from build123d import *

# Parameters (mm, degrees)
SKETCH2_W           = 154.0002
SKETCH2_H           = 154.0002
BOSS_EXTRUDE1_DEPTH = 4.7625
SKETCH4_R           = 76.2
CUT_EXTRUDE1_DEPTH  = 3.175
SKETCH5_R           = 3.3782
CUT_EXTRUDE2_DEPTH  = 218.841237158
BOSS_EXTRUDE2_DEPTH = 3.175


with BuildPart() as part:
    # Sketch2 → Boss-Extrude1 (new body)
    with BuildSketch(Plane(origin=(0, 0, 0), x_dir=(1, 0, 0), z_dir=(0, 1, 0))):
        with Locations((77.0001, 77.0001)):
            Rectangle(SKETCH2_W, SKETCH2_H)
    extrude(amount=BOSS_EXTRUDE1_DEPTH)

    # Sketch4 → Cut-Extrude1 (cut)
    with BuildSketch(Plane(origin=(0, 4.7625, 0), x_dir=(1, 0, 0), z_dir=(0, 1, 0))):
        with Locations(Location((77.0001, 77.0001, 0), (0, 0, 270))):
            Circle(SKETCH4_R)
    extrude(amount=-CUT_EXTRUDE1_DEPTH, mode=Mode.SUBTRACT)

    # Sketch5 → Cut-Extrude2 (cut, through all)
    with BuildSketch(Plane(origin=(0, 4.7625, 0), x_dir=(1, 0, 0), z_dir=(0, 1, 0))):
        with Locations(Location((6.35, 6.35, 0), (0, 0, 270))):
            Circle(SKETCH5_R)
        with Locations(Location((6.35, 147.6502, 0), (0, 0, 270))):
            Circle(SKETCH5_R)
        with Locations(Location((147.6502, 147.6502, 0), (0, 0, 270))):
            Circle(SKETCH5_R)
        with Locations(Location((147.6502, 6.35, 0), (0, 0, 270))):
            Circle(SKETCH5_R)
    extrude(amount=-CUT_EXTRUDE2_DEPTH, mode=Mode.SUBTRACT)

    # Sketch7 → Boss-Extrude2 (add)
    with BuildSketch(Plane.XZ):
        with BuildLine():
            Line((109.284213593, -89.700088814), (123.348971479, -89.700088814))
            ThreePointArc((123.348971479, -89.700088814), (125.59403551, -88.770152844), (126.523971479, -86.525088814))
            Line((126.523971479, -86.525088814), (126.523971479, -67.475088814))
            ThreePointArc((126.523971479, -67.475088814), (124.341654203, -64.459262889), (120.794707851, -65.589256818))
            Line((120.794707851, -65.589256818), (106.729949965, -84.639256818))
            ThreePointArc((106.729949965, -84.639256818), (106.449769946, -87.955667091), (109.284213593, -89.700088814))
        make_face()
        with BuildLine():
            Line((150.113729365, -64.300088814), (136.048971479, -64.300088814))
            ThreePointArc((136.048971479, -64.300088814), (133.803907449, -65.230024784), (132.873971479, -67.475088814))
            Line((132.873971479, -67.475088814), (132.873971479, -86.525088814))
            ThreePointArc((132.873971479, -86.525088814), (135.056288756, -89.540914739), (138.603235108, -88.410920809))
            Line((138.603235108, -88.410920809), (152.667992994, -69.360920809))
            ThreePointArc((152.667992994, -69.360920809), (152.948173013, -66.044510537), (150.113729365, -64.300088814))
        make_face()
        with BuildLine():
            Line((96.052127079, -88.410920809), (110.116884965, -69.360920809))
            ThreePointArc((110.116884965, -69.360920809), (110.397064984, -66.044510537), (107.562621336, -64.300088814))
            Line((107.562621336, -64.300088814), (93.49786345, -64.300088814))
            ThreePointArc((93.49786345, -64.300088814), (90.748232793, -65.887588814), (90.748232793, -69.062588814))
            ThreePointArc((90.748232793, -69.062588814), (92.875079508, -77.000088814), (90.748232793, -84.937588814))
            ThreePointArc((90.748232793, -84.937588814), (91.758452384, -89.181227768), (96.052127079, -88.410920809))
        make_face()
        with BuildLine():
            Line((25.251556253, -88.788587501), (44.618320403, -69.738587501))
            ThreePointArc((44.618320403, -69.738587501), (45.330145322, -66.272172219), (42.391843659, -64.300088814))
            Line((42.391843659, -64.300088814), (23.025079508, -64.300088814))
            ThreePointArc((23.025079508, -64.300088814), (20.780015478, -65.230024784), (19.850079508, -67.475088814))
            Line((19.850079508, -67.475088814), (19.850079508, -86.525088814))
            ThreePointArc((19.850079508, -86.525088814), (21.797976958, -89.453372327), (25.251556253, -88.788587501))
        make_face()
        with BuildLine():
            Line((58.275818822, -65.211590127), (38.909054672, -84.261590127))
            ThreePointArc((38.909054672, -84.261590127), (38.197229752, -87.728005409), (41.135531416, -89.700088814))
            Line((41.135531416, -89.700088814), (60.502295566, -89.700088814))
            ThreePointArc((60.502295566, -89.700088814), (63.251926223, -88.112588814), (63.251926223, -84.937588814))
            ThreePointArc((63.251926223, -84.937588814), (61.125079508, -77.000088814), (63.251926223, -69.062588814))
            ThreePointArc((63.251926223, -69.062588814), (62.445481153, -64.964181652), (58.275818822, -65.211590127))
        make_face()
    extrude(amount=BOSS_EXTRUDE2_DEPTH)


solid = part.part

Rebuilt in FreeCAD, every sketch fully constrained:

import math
import FreeCAD as App
import Part
import Sketcher

V = App.Vector
Q = App.Units.Quantity

doc = App.newDocument("Part")
body = doc.addObject("PartDesign::Body", "Body")

# Sketch on XZ plane
sketch1 = body.newObject("Sketcher::SketchObject", "Sketch")
sketch1.AttachmentSupport = (doc.getObject("XZ_Plane"), [""])
sketch1.MapMode = "FlatFace"
sketch1.addGeometry([
    Part.LineSegment(V(0, -154.0002, 0), V(0, 0, 0)),
    Part.LineSegment(V(0, 0, 0), V(154.0002, 0, 0)),
    Part.LineSegment(V(154.0002, 0, 0), V(154.0002, -154.0002, 0)),
    Part.LineSegment(V(154.0002, -154.0002, 0), V(0, -154.0002, 0)),
], False)
sketch1.addConstraint([
    Sketcher.Constraint("Coincident", 0, 2, 1, 1),
    Sketcher.Constraint("Coincident", 1, 2, 2, 1),
    Sketcher.Constraint("Coincident", 2, 2, 3, 1),
    Sketcher.Constraint("Coincident", 3, 2, 0, 1),
    Sketcher.Constraint("Vertical", 0),
    Sketcher.Constraint("Horizontal", 1),
    Sketcher.Constraint("Vertical", 2),
    Sketcher.Constraint("Horizontal", 3),
    Sketcher.Constraint("Coincident", 0, 2, -1, 1),
    Sketcher.Constraint("Equal", 3, 0),
    Sketcher.Constraint("DistanceX", 1, 1, 1, 2, Q("6.063 in")),
])
pad1 = body.newObject("PartDesign::Pad", "Pad")
pad1.Profile = sketch1
pad1.Length = Q("0.1875 in")
pad1.Reversed = True

# Sketch on XZ plane
sketch2 = body.newObject("Sketcher::SketchObject", "Sketch001")
sketch2.AttachmentSupport = (doc.getObject("XZ_Plane"), [""])
sketch2.MapMode = "FlatFace"
sketch2.AttachmentOffset = App.Placement(V(0, 0, -0.1875 * 25.4), App.Rotation())
sketch2.addGeometry(Part.Circle(V(77, -77, 0), V(0, 0, 1), 76), False)
sketch2.addConstraint([
    Sketcher.Constraint("Diameter", 0, Q("6 in")),
    Sketcher.Constraint("DistanceX", -1, 1, 0, 3, Q("3.0315 in")),
    Sketcher.Constraint("DistanceY", 0, 3, -1, 1, Q("3.0315 in")),
])
pocket1 = body.newObject("PartDesign::Pocket", "Pocket")
pocket1.Profile = sketch2
pocket1.Length = Q("0.125 in")
pocket1.Reversed = True

# Sketch on XZ plane
sketch3 = body.newObject("Sketcher::SketchObject", "Sketch002")
sketch3.AttachmentSupport = (doc.getObject("XZ_Plane"), [""])
sketch3.MapMode = "FlatFace"
sketch3.AttachmentOffset = App.Placement(V(0, 0, -0.1875 * 25.4), App.Rotation())
sketch3.addGeometry([
    Part.Circle(V(6.3, -6.3, 0), V(0, 0, 1), 3.4),
    Part.Circle(V(6.3, -147.7, 0), V(0, 0, 1), 3.4),
    Part.Circle(V(147.7, -147.7, 0), V(0, 0, 1), 3.4),
    Part.Circle(V(147.7, -6.3, 0), V(0, 0, 1), 3.4),
], False)
sketch3.addConstraint([
    Sketcher.Constraint("Equal", 0, 1),
    Sketcher.Constraint("Equal", 1, 2),
    Sketcher.Constraint("Equal", 2, 3),
    Sketcher.Constraint("Horizontal", 1, 3, 2, 3),
    Sketcher.Constraint("Horizontal", 0, 3, 3, 3),
    Sketcher.Constraint("Vertical", 0, 3, 1, 3),
    Sketcher.Constraint("Vertical", 2, 3, 3, 3),
    Sketcher.Constraint("Diameter", 0, Q("0.266 in")),
    Sketcher.Constraint("DistanceX", -1, 1, 0, 3, Q("0.25 in")),
    Sketcher.Constraint("DistanceY", 0, 3, -1, 1, Q("0.25 in")),
    Sketcher.Constraint("DistanceY", 1, 3, -1, 1, Q("5.813 in")),
    Sketcher.Constraint("DistanceX", -1, 1, 2, 3, Q("5.813 in")),
])
pocket2 = body.newObject("PartDesign::Pocket", "Pocket001")
pocket2.Profile = sketch3
pocket2.Type = "ThroughAll"
pocket2.Reversed = True

# Sketch on XZ plane
sketch4 = body.newObject("Sketcher::SketchObject", "Sketch003")
sketch4.AttachmentSupport = (doc.getObject("XZ_Plane"), [""])
sketch4.MapMode = "FlatFace"
sketch4.addGeometry([
    Part.LineSegment(V(109.3, -89.7, 0), V(123.3, -89.7, 0)),  # 0
    Part.ArcOfCircle(Part.Circle(V(123.3, -86.5, 0), V(0, 0, 1), 3.2), math.radians(-90), math.radians(0)),  # 1
    Part.LineSegment(V(126.5, -86.5, 0), V(126.5, -67.5, 0)),  # 2
    Part.ArcOfCircle(Part.Circle(V(123.3, -67.5, 0), V(0, 0, 1), 3.2), math.radians(0), math.radians(144)),  # 3
    Part.LineSegment(V(120.8, -65.6, 0), V(106.7, -84.6, 0)),  # 4
    Part.ArcOfCircle(Part.Circle(V(109.3, -86.5, 0), V(0, 0, 1), 3.2), math.radians(144), math.radians(270)),  # 5
    Part.LineSegment(V(150.1, -64.3, 0), V(136, -64.3, 0)),  # 6
    Part.ArcOfCircle(Part.Circle(V(136, -67.5, 0), V(0, 0, 1), 3.2), math.radians(90), math.radians(180)),  # 7
    Part.LineSegment(V(132.9, -67.5, 0), V(132.9, -86.5, 0)),  # 8
    Part.ArcOfCircle(Part.Circle(V(136, -86.5, 0), V(0, 0, 1), 3.2), math.radians(180), math.radians(324)),  # 9
    Part.LineSegment(V(138.6, -88.4, 0), V(152.7, -69.4, 0)),  # 10
    Part.ArcOfCircle(Part.Circle(V(150.1, -67.5, 0), V(0, 0, 1), 3.2), math.radians(-36), math.radians(90)),  # 11
    Part.LineSegment(V(96.1, -88.4, 0), V(110.1, -69.4, 0)),  # 12
    Part.ArcOfCircle(Part.Circle(V(107.6, -67.5, 0), V(0, 0, 1), 3.2), math.radians(-36), math.radians(90)),  # 13
    Part.LineSegment(V(107.6, -64.3, 0), V(93.5, -64.3, 0)),  # 14
    Part.ArcOfCircle(Part.Circle(V(93.5, -67.5, 0), V(0, 0, 1), 3.2), math.radians(90), math.radians(210)),  # 15
    Part.ArcOfCircle(Part.Circle(V(77, -77, 0), V(0, 0, 1), 15.9), math.radians(-30), math.radians(30)),  # 16
    Part.ArcOfCircle(Part.Circle(V(93.5, -86.5, 0), V(0, 0, 1), 3.2), math.radians(150), math.radians(324)),  # 17
    Part.LineSegment(V(25.3, -88.8, 0), V(44.6, -69.7, 0)),  # 18
    Part.ArcOfCircle(Part.Circle(V(42.4, -67.5, 0), V(0, 0, 1), 3.2), math.radians(-45), math.radians(90)),  # 19
    Part.LineSegment(V(42.4, -64.3, 0), V(23, -64.3, 0)),  # 20
    Part.ArcOfCircle(Part.Circle(V(23, -67.5, 0), V(0, 0, 1), 3.2), math.radians(90), math.radians(180)),  # 21
    Part.LineSegment(V(19.9, -67.5, 0), V(19.9, -86.5, 0)),  # 22
    Part.ArcOfCircle(Part.Circle(V(23, -86.5, 0), V(0, 0, 1), 3.2), math.radians(180), math.radians(315)),  # 23
    Part.LineSegment(V(58.3, -65.2, 0), V(38.9, -84.3, 0)),  # 24
    Part.ArcOfCircle(Part.Circle(V(41.1, -86.5, 0), V(0, 0, 1), 3.2), math.radians(135), math.radians(270)),  # 25
    Part.LineSegment(V(41.1, -89.7, 0), V(60.5, -89.7, 0)),  # 26
    Part.ArcOfCircle(Part.Circle(V(60.5, -86.5, 0), V(0, 0, 1), 3.2), math.radians(-90), math.radians(30)),  # 27
    Part.ArcOfCircle(Part.Circle(V(77, -77, 0), V(0, 0, 1), 15.9), math.radians(150), math.radians(210)),  # 28
    Part.ArcOfCircle(Part.Circle(V(60.5, -67.5, 0), V(0, 0, 1), 3.2), math.radians(-30), math.radians(135)),  # 29
], False)
sketch4.addConstraint([
    Sketcher.Constraint("Tangent", 0, 2, 1, 1),
    Sketcher.Constraint("Tangent", 1, 2, 2, 1),
    Sketcher.Constraint("Tangent", 2, 2, 3, 1),
    Sketcher.Constraint("Tangent", 3, 2, 4, 1),
    Sketcher.Constraint("Tangent", 4, 2, 5, 1),
    Sketcher.Constraint("Tangent", 5, 2, 0, 1),
    Sketcher.Constraint("Tangent", 6, 2, 7, 1),
    Sketcher.Constraint("Tangent", 7, 2, 8, 1),
    Sketcher.Constraint("Tangent", 8, 2, 9, 1),
    Sketcher.Constraint("Tangent", 9, 2, 10, 1),
    Sketcher.Constraint("Tangent", 10, 2, 11, 1),
    Sketcher.Constraint("Tangent", 11, 2, 6, 1),
    Sketcher.Constraint("Tangent", 12, 2, 13, 1),
    Sketcher.Constraint("Tangent", 13, 2, 14, 1),
    Sketcher.Constraint("Tangent", 14, 2, 15, 1),
    Sketcher.Constraint("Tangent", 15, 2, 16, 2),
    Sketcher.Constraint("Tangent", 16, 1, 17, 1),
    Sketcher.Constraint("Tangent", 17, 2, 12, 1),
    Sketcher.Constraint("Tangent", 18, 2, 19, 1),
    Sketcher.Constraint("Tangent", 19, 2, 20, 1),
    Sketcher.Constraint("Tangent", 20, 2, 21, 1),
    Sketcher.Constraint("Tangent", 21, 2, 22, 1),
    Sketcher.Constraint("Tangent", 22, 2, 23, 1),
    Sketcher.Constraint("Tangent", 23, 2, 18, 1),
    Sketcher.Constraint("Tangent", 24, 2, 25, 1),
    Sketcher.Constraint("Tangent", 25, 2, 26, 1),
    Sketcher.Constraint("Tangent", 26, 2, 27, 1),
    Sketcher.Constraint("Tangent", 27, 2, 28, 2),
    Sketcher.Constraint("Tangent", 28, 1, 29, 1),
    Sketcher.Constraint("Tangent", 29, 2, 24, 1),
    Sketcher.Constraint("Horizontal", 0),
    Sketcher.Constraint("Vertical", 2),
    Sketcher.Constraint("Horizontal", 6),
    Sketcher.Constraint("Vertical", 8),
    Sketcher.Constraint("Horizontal", 14),
    Sketcher.Constraint("Horizontal", 20),
    Sketcher.Constraint("Vertical", 22),
    Sketcher.Constraint("Horizontal", 26),
    Sketcher.Constraint("Coincident", 28, 3, 16, 3),
    Sketcher.Constraint("Equal", 1, 3),
    Sketcher.Constraint("Equal", 3, 5),
    Sketcher.Constraint("Equal", 5, 7),
    Sketcher.Constraint("Equal", 7, 9),
    Sketcher.Constraint("Equal", 9, 11),
    Sketcher.Constraint("Equal", 11, 13),
    Sketcher.Constraint("Equal", 13, 15),
    Sketcher.Constraint("Equal", 15, 17),
    Sketcher.Constraint("Equal", 17, 19),
    Sketcher.Constraint("Equal", 19, 21),
    Sketcher.Constraint("Equal", 21, 23),
    Sketcher.Constraint("Equal", 23, 25),
    Sketcher.Constraint("Equal", 25, 27),
    Sketcher.Constraint("Equal", 16, 28),
    Sketcher.Constraint("Equal", 27, 29),
    Sketcher.Constraint("Parallel", 4, 10),
    Sketcher.Constraint("Parallel", 10, 12),
    Sketcher.Constraint("Parallel", 18, 24),
    Sketcher.Constraint("Horizontal", 3, 3, 7, 3),
    Sketcher.Constraint("Horizontal", 5, 3, 9, 3),
    Sketcher.Constraint("Horizontal", 11, 3, 13, 3),
    Sketcher.Constraint("Horizontal", 9, 3, 17, 3),
    Sketcher.Constraint("Horizontal", 15, 3, 19, 3),
    Sketcher.Constraint("Horizontal", 17, 3, 23, 3),
    Sketcher.Constraint("Horizontal", 23, 3, 25, 3),
    Sketcher.Constraint("Horizontal", 21, 3, 29, 3),
    Sketcher.Constraint("Vertical", 15, 3, 17, 3),
    Sketcher.Constraint("Radius", 1, Q("0.125 in")),
    Sketcher.Constraint("Radius", 16, Q("0.625 in")),
    Sketcher.Constraint("DistanceY", 2, 1, 2, 2, Q("0.75 in")),
    Sketcher.Constraint("DistanceX", 3, 3, 7, 3, Q("0.5 in")),
    Sketcher.Constraint("DistanceX", 21, 3, 16, 3, Q("2.125 in")),
    Sketcher.Constraint("DistanceY", 18, 2, 19, 3, Q("2.263499 mm")),
    Sketcher.Constraint("DistanceX", 0, 1, 0, 2, Q("14.064758 mm")),
    Sketcher.Constraint("DistanceX", -1, 1, 1, 3, Q("123.348971 mm")),
    Sketcher.Constraint("DistanceY", 1, 3, -1, 1, Q("86.525089 mm")),
    Sketcher.Constraint("DistanceX", -1, 1, 13, 3, Q("107.562621 mm")),
])
pad2 = body.newObject("PartDesign::Pad", "Pad001")
pad2.Profile = sketch4
pad2.Length = Q("0.125 in")

doc.recompute()
